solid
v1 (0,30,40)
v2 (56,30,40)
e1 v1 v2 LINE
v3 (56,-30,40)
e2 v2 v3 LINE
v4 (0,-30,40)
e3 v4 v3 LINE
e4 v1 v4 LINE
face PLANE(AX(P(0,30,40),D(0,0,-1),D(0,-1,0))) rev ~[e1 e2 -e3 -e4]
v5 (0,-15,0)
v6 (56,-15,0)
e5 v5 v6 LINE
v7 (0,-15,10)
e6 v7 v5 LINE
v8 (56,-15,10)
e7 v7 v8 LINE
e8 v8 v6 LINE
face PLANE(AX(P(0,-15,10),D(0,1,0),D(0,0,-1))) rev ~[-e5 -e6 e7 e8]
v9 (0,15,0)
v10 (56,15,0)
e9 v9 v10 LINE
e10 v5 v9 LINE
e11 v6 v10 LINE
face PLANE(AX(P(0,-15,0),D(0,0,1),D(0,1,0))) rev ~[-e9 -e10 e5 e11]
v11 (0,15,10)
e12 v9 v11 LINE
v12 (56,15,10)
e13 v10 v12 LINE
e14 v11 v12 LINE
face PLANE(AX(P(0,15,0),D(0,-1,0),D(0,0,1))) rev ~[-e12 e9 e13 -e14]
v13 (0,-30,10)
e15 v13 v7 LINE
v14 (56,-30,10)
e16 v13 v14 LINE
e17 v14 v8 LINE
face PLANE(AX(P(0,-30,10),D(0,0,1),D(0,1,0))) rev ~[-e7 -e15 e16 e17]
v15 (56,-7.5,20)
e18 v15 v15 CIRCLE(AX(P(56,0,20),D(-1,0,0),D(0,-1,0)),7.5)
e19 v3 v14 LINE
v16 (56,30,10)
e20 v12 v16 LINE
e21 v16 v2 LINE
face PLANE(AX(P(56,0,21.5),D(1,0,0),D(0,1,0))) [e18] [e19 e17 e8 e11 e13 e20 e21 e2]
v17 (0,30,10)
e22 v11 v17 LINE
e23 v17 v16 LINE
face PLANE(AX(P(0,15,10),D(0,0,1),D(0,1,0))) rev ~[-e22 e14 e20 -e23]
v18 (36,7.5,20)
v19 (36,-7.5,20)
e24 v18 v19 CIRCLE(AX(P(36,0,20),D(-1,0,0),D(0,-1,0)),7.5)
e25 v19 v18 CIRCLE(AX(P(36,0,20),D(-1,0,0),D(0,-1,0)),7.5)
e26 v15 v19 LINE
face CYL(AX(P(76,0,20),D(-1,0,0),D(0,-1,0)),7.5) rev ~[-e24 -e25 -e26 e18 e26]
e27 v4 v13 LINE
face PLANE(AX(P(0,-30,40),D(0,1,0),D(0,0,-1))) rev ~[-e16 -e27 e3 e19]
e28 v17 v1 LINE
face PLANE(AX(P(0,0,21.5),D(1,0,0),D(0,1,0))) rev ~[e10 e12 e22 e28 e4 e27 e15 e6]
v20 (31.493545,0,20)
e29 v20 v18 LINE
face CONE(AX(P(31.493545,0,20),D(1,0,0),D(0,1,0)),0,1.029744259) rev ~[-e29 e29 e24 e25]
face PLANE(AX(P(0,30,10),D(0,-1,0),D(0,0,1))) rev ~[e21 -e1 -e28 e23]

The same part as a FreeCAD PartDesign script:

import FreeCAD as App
import Part
import Sketcher

V = App.Vector

doc = App.newDocument("Part")
body = doc.addObject("PartDesign::Body", "Body")

# Sketch on YZ plane
sketch1 = doc.addObject("Sketcher::SketchObject", "Sketch")
body.addObject(sketch1)
sketch1.AttachmentSupport = (doc.YZ_Plane, [""])
sketch1.MapMode = "FlatFace"
sketch1.addGeometry(Part.LineSegment(V(-15, 0, 0), V(15, 0, 0)), False)
sketch1.addGeometry(Part.LineSegment(V(15, 0, 0), V(15, 10, 0)), False)
sketch1.addGeometry(Part.LineSegment(V(15, 10, 0), V(30, 10, 0)), False)
sketch1.addGeometry(Part.LineSegment(V(30, 10, 0), V(30, 40, 0)), False)
sketch1.addGeometry(Part.LineSegment(V(30, 40, 0), V(-30, 40, 0)), False)
sketch1.addGeometry(Part.LineSegment(V(-30, 40, 0), V(-30, 10, 0)), False)
sketch1.addGeometry(Part.LineSegment(V(-30, 10, 0), V(-15, 10, 0)), False)
sketch1.addGeometry(Part.LineSegment(V(-15, 10, 0), V(-15, 0, 0)), False)
sketch1.addConstraint(Sketcher.Constraint("Coincident", 0, 2, 1, 1))
sketch1.addConstraint(Sketcher.Constraint("Coincident", 1, 2, 2, 1))
sketch1.addConstraint(Sketcher.Constraint("Coincident", 2, 2, 3, 1))
sketch1.addConstraint(Sketcher.Constraint("Coincident", 3, 2, 4, 1))
sketch1.addConstraint(Sketcher.Constraint("Coincident", 4, 2, 5, 1))
sketch1.addConstraint(Sketcher.Constraint("Coincident", 5, 2, 6, 1))
sketch1.addConstraint(Sketcher.Constraint("Coincident", 6, 2, 7, 1))
sketch1.addConstraint(Sketcher.Constraint("Coincident", 7, 2, 0, 1))
sketch1.addConstraint(Sketcher.Constraint("Horizontal", 0))
sketch1.addConstraint(Sketcher.Constraint("Vertical", 1))
sketch1.addConstraint(Sketcher.Constraint("Horizontal", 2))
sketch1.addConstraint(Sketcher.Constraint("Vertical", 3))
sketch1.addConstraint(Sketcher.Constraint("Horizontal", 4))
sketch1.addConstraint(Sketcher.Constraint("Vertical", 5))
sketch1.addConstraint(Sketcher.Constraint("Horizontal", 6))
sketch1.addConstraint(Sketcher.Constraint("Vertical", 7))
sketch1.addConstraint(Sketcher.Constraint("Symmetric", 0, 2, 7, 2, -1, 1))
sketch1.addConstraint(Sketcher.Constraint("Symmetric", 2, 2, 5, 2, -2))
sketch1.addConstraint(Sketcher.Constraint("Equal", 0, 3))
sketch1.addConstraint(Sketcher.Constraint("DistanceX", 0, 1, 0, 2, 30.0))
sketch1.addConstraint(Sketcher.Constraint("DistanceX", 2, 1, 2, 2, 15.0))
sketch1.addConstraint(Sketcher.Constraint("DistanceY", 1, 1, 1, 2, 10.0))
pad1 = doc.addObject("PartDesign::Pad", "Pad")
body.addObject(pad1)
pad1.Profile = sketch1
pad1.Length = 56

# Sketch on YZ plane
sketch2 = doc.addObject("Sketcher::SketchObject", "Sketch001")
body.addObject(sketch2)
sketch2.AttachmentSupport = (doc.YZ_Plane, [""])
sketch2.MapMode = "FlatFace"
sketch2.AttachmentOffset = App.Placement(V(0, 0, 56), App.Rotation())
sketch2.addGeometry(Part.Circle(V(0, 20, 0), V(0, 0, 1), 7.5), False)
sketch2.addConstraint(Sketcher.Constraint("PointOnObject", 0, 3, -2))
sketch2.addConstraint(Sketcher.Constraint("Diameter", 0, 15.0))
sketch2.addConstraint(Sketcher.Constraint("DistanceY", -1, 1, 0, 3, 20.0))
doc.recompute()
hole = doc.addObject("PartDesign::Hole", "Hole")
body.addObject(hole)
hole.Profile = sketch2
hole.ThreadType = "None"
hole.Diameter = 15
hole.DepthType = "Dimension"
hole.Depth = 20
hole.DrillPoint = "Angled"
hole.DrillPointAngle = 118

doc.recompute()
